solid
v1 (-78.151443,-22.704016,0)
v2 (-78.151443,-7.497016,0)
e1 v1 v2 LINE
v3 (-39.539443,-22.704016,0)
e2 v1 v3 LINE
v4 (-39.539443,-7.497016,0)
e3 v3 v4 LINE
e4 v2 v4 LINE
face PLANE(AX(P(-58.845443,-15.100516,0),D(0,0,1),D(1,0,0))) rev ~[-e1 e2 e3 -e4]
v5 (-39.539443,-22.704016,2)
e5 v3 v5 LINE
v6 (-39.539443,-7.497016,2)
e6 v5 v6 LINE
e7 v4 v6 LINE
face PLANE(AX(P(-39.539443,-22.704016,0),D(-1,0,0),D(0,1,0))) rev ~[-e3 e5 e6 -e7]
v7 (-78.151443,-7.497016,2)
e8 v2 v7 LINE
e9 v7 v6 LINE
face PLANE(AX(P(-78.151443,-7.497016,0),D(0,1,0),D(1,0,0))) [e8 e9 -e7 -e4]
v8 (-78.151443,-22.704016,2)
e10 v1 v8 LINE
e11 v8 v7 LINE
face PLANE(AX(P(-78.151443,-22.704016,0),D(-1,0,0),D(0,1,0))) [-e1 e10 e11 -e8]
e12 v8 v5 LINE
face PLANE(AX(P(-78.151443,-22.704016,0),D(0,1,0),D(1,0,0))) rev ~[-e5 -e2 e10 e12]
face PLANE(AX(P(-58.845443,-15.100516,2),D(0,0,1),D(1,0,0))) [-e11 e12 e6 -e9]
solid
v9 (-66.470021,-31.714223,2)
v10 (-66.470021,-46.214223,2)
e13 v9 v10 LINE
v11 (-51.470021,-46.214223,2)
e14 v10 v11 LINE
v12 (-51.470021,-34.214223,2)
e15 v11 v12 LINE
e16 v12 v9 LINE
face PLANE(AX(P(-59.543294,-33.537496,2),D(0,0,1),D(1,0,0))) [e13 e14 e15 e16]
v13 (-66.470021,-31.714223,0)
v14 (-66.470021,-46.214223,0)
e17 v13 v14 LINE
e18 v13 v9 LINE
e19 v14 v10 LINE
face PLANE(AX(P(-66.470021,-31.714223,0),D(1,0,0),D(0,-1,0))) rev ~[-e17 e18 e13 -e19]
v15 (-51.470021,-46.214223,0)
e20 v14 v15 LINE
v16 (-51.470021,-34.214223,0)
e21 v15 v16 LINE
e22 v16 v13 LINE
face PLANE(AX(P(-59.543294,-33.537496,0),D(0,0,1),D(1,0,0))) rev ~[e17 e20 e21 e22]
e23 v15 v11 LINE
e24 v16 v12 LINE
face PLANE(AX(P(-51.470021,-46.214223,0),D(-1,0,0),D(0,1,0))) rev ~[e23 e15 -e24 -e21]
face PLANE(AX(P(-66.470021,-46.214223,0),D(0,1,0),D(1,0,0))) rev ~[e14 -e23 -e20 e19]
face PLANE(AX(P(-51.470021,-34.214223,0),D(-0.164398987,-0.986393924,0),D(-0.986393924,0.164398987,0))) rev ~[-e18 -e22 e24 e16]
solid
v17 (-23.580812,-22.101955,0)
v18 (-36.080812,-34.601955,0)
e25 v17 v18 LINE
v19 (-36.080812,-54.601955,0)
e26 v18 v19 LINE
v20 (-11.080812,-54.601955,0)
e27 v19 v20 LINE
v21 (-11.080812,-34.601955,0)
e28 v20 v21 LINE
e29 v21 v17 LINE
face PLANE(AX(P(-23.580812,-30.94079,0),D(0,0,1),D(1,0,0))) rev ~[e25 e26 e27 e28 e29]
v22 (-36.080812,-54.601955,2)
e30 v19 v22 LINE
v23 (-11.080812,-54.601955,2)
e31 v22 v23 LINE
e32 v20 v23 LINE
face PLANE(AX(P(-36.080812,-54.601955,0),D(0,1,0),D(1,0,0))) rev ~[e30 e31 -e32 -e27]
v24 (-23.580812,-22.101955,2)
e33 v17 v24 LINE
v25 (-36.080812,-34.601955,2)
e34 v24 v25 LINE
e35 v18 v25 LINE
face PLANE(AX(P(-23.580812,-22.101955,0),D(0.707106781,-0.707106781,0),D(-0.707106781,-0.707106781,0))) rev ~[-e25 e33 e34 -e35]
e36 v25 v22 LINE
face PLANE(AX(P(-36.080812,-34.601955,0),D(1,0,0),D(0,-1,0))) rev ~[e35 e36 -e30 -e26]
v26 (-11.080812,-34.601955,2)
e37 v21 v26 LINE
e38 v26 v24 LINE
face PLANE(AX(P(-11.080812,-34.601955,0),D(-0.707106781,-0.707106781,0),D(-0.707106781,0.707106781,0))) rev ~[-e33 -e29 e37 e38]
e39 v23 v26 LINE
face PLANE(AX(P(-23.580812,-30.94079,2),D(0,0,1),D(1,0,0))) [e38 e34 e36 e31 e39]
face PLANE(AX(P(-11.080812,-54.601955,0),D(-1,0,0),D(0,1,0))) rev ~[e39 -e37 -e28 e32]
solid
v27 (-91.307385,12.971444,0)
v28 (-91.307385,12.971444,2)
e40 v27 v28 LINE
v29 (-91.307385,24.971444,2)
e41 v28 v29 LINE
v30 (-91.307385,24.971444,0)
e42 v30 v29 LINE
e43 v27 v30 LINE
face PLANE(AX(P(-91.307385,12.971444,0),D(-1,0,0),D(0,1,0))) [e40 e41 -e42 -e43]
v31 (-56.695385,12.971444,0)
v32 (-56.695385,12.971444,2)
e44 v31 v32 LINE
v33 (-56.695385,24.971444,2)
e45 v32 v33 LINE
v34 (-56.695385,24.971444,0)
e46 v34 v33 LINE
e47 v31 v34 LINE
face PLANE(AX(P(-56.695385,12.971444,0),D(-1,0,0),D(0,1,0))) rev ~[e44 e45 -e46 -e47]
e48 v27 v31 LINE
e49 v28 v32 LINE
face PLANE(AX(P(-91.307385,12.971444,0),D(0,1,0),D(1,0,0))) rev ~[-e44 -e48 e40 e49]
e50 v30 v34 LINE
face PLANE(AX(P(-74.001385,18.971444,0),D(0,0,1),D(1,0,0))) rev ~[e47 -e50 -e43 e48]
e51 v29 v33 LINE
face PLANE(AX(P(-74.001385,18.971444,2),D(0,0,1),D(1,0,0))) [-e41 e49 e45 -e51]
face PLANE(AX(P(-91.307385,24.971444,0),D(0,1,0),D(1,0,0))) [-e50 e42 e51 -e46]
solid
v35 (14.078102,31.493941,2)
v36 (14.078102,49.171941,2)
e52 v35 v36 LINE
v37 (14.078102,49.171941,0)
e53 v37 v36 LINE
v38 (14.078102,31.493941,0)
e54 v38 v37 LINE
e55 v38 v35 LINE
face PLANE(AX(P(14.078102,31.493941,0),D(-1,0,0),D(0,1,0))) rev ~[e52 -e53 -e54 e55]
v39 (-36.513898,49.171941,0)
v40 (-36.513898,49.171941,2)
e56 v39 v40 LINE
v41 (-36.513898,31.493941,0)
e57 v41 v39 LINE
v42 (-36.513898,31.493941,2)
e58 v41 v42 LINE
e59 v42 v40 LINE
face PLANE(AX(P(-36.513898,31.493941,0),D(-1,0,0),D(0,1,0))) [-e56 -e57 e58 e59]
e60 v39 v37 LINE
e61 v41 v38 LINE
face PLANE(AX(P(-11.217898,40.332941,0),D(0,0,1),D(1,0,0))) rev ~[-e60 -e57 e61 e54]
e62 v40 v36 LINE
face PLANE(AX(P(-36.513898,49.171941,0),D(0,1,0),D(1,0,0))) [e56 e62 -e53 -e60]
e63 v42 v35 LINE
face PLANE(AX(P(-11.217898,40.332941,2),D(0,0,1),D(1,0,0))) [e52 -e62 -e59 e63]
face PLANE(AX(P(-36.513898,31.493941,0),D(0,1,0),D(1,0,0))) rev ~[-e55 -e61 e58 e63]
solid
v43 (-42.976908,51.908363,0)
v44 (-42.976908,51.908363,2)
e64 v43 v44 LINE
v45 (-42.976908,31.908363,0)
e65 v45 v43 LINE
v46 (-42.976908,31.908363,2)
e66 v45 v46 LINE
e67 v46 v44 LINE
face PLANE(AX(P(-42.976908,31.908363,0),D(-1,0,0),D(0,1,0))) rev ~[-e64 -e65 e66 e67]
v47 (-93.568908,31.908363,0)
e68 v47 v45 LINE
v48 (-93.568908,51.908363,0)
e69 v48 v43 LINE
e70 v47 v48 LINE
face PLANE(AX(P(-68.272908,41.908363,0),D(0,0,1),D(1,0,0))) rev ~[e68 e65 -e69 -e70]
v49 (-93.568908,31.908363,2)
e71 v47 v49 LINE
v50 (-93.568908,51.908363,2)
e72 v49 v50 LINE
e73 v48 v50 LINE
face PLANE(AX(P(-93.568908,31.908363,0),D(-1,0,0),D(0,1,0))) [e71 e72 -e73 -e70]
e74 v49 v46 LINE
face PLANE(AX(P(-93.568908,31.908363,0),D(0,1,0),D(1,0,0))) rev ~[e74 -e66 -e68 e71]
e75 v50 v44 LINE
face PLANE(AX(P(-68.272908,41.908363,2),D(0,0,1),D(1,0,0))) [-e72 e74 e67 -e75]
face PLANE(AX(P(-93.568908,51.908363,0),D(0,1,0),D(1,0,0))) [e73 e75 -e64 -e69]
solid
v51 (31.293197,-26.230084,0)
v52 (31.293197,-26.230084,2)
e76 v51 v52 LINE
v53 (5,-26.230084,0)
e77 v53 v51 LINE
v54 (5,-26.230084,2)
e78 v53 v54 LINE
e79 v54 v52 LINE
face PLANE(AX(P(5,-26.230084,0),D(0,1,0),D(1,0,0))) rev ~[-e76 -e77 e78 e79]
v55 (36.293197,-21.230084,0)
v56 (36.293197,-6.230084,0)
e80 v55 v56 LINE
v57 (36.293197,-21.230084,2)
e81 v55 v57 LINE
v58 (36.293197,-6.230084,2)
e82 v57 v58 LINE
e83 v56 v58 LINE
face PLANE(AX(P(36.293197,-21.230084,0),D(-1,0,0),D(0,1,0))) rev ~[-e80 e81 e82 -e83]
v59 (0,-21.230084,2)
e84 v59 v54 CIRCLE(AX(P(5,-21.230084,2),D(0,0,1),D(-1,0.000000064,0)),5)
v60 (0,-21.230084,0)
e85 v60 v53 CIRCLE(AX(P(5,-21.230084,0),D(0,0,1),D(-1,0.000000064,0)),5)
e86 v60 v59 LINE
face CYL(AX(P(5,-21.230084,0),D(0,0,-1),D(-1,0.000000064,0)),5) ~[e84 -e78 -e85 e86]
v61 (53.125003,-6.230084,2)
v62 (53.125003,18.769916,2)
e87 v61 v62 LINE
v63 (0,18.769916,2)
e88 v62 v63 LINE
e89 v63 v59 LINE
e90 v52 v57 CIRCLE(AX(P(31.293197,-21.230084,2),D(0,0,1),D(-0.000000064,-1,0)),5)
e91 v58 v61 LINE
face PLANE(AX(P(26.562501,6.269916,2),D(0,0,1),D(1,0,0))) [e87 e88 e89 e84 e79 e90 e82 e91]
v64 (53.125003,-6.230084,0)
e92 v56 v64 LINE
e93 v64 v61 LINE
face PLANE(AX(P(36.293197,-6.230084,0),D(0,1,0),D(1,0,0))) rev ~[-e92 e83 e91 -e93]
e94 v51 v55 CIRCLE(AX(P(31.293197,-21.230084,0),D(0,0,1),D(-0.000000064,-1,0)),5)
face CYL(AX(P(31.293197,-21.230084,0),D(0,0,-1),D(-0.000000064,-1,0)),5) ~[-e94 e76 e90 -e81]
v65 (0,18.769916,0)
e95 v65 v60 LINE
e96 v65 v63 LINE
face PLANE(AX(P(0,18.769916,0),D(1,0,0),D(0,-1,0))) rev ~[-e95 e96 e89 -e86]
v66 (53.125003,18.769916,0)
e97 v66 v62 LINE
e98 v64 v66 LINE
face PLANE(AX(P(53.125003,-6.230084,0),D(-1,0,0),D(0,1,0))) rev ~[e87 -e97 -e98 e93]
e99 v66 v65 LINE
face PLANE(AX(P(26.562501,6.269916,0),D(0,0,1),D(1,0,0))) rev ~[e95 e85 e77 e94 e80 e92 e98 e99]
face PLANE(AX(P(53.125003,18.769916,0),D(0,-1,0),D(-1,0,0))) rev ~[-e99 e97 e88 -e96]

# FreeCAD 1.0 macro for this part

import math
import FreeCAD as App
import Part
import Sketcher

V = App.Vector
Q = App.Units.Quantity


def add_polygon(sketch, points):
    """Adds a closed chain of lines whose ends are joined by coincident constraints."""
    first, n = sketch.GeometryCount, len(points)
    for a, b in zip(points, points[1:] + points[:1]):
        sketch.addGeometry(Part.LineSegment(App.Vector(*a, 0), App.Vector(*b, 0)), False)
    for i in range(n):
        sketch.addConstraint(Sketcher.Constraint("Coincident", first + i, 2, first + (i + 1) % n, 1))

doc = App.newDocument("Part")
body = doc.addObject("PartDesign::Body", "Body")

sketch1 = body.newObject("Sketcher::SketchObject", "Sketch")
sketch1.AttachmentSupport = (doc.getObject("XY_Plane"), [""])
sketch1.MapMode = "FlatFace"
add_polygon(sketch1, [(-93.568908, 51.908363), (-93.568908, 31.908363), (-42.976908, 31.908363), (-42.976908, 51.908363)])
sketch1.addConstraint(Sketcher.Constraint("Vertical", 0))
sketch1.addConstraint(Sketcher.Constraint("Horizontal", 1))
sketch1.addConstraint(Sketcher.Constraint("Vertical", 2))
sketch1.addConstraint(Sketcher.Constraint("Horizontal", 3))
sketch1.addConstraint(Sketcher.Constraint("DistanceY", 0, 2, 0, 1, Q("20 mm")))
sketch1.addConstraint(Sketcher.Constraint("DistanceX", 1, 1, 1, 2, Q("50.592 mm")))
sketch1.addConstraint(Sketcher.Constraint("DistanceX", 1, 2, -1, 1, Q("42.976908 mm")))
sketch1.addConstraint(Sketcher.Constraint("DistanceY", -1, 1, 0, 2, Q("31.908363 mm")))
pad1 = body.newObject("PartDesign::Pad", "Pad")
pad1.Profile = sketch1
pad1.Length = 2
body2 = doc.addObject("PartDesign::Body", "Body001")

sketch2 = body2.newObject("Sketcher::SketchObject", "Sketch001")
sketch2.AttachmentSupport = (doc.getObject("XY_Plane001"), [""])
sketch2.MapMode = "FlatFace"
add_polygon(sketch2, [(-91.307385, 24.971444), (-91.307385, 12.971444), (-56.695385, 12.971444), (-56.695385, 24.971444)])
sketch2.addConstraint(Sketcher.Constraint("Vertical", 0))
sketch2.addConstraint(Sketcher.Constraint("Horizontal", 1))
sketch2.addConstraint(Sketcher.Constraint("Vertical", 2))
sketch2.addConstraint(Sketcher.Constraint("Horizontal", 3))
sketch2.addConstraint(Sketcher.Constraint("DistanceY", 0, 2, 0, 1, Q("12 mm")))
sketch2.addConstraint(Sketcher.Constraint("DistanceX", 1, 1, 1, 2, Q("34.612 mm")))
sketch2.addConstraint(Sketcher.Constraint("DistanceX", 0, 2, -1, 1, Q("91.307385 mm")))
sketch2.addConstraint(Sketcher.Constraint("DistanceY", -1, 1, 0, 2, Q("12.971444 mm")))
pad2 = body2.newObject("PartDesign::Pad", "Pad001")
pad2.Profile = sketch2
pad2.Length = 2
body3 = doc.addObject("PartDesign::Body", "Body002")

sketch3 = body3.newObject("Sketcher::SketchObject", "Sketch002")
sketch3.AttachmentSupport = (doc.getObject("XY_Plane002"), [""])
sketch3.MapMode = "FlatFace"
add_polygon(sketch3, [(-36.513898, 49.171941), (-36.513898, 31.493941), (14.078102, 31.493941), (14.078102, 49.171941)])
sketch3.addConstraint(Sketcher.Constraint("Vertical", 0))
sketch3.addConstraint(Sketcher.Constraint("Horizontal", 1))
sketch3.addConstraint(Sketcher.Constraint("Vertical", 2))
sketch3.addConstraint(Sketcher.Constraint("Horizontal", 3))
sketch3.addConstraint(Sketcher.Constraint("DistanceX", 1, 1, 1, 2, Q("50.592 mm")))
sketch3.addConstraint(Sketcher.Constraint("DistanceY", 0, 2, 0, 1, Q("17.678 mm")))
sketch3.addConstraint(Sketcher.Constraint("DistanceY", -1, 1, 0, 2, Q("31.493941 mm")))
sketch3.addConstraint(Sketcher.Constraint("DistanceX", 0, 2, -1, 1, Q("36.513898 mm")))
pad3 = body3.newObject("PartDesign::Pad", "Pad002")
pad3.Profile = sketch3
pad3.Length = 2
body4 = doc.addObject("PartDesign::Body", "Body003")

sketch4 = body4.newObject("Sketcher::SketchObject", "Sketch003")
sketch4.AttachmentSupport = (doc.getObject("XY_Plane003"), [""])
sketch4.MapMode = "FlatFace"
sketch4.addGeometry(Part.LineSegment(V(53.125003, 18.769916, 0), V(0, 18.769916, 0)), False)
sketch4.addGeometry(Part.LineSegment(V(0, 18.769916, 0), V(0, -21.230084, 0)), False)
sketch4.addGeometry(Part.ArcOfCircle(Part.Circle(V(5, -21.230084, 0), V(0, 0, 1), 5), math.radians(179.999996), math.radians(270.000004)), False)
sketch4.addGeometry(Part.LineSegment(V(5, -26.230084, 0), V(31.293197, -26.230084, 0)), False)
sketch4.addGeometry(Part.ArcOfCircle(Part.Circle(V(31.293197, -21.230084, 0), V(0, 0, 1), 5), math.radians(-90.000004), math.radians(0.000004)), False)
sketch4.addGeometry(Part.LineSegment(V(36.293197, -21.230084, 0), V(36.293197, -6.230084, 0)), False)
sketch4.addGeometry(Part.LineSegment(V(36.293197, -6.230084, 0), V(53.125003, -6.230084, 0)), False)
sketch4.addGeometry(Part.LineSegment(V(53.125003, -6.230084, 0), V(53.125003, 18.769916, 0)), False)
sketch4.addConstraint(Sketcher.Constraint("Coincident", 0, 2, 1, 1))
sketch4.addConstraint(Sketcher.Constraint("Tangent", 1, 2, 2, 1))
sketch4.addConstraint(Sketcher.Constraint("Tangent", 2, 2, 3, 1))
sketch4.addConstraint(Sketcher.Constraint("Tangent", 3, 2, 4, 1))
sketch4.addConstraint(Sketcher.Constraint("Tangent", 4, 2, 5, 1))
sketch4.addConstraint(Sketcher.Constraint("Coincident", 5, 2, 6, 1))
sketch4.addConstraint(Sketcher.Constraint("Coincident", 6, 2, 7, 1))
sketch4.addConstraint(Sketcher.Constraint("Coincident", 7, 2, 0, 1))
sketch4.addConstraint(Sketcher.Constraint("Horizontal", 0))
sketch4.addConstraint(Sketcher.Constraint("Vertical", 1))
sketch4.addConstraint(Sketcher.Constraint("Horizontal", 3))
sketch4.addConstraint(Sketcher.Constraint("Vertical", 5))
sketch4.addConstraint(Sketcher.Constraint("Horizontal", 6))
sketch4.addConstraint(Sketcher.Constraint("Vertical", 7))
sketch4.addConstraint(Sketcher.Constraint("Equal", 2, 4))
sketch4.addConstraint(Sketcher.Constraint("PointOnObject", 0, 2, -2))
sketch4.addConstraint(Sketcher.Constraint("Radius", 2, Q("5 mm")))
sketch4.addConstraint(Sketcher.Constraint("DistanceY", 1, 2, 1, 1, Q("40 mm")))
sketch4.addConstraint(Sketcher.Constraint("DistanceY", 5, 1, 5, 2, Q("15 mm")))
sketch4.addConstraint(Sketcher.Constraint("DistanceX", 0, 2, 0, 1, Q("53.125003 mm")))
sketch4.addConstraint(Sketcher.Constraint("DistanceX", 3, 1, 3, 2, Q("26.293197 mm")))
sketch4.addConstraint(Sketcher.Constraint("DistanceY", 2, 3, -1, 1, Q("21.230084 mm")))
pad4 = body4.newObject("PartDesign::Pad", "Pad003")
pad4.Profile = sketch4
pad4.Length = 2
body5 = doc.addObject("PartDesign::Body", "Body004")

sketch5 = body5.newObject("Sketcher::SketchObject", "Sketch004")
sketch5.AttachmentSupport = (doc.getObject("XY_Plane004"), [""])
sketch5.MapMode = "FlatFace"
add_polygon(sketch5, [(-78.151443, -7.497016), (-78.151443, -22.704016), (-39.539443, -22.704016), (-39.539443, -7.497016)])
sketch5.addConstraint(Sketcher.Constraint("Vertical", 0))
sketch5.addConstraint(Sketcher.Constraint("Horizontal", 1))
sketch5.addConstraint(Sketcher.Constraint("Vertical", 2))
sketch5.addConstraint(Sketcher.Constraint("Horizontal", 3))
sketch5.addConstraint(Sketcher.Constraint("DistanceX", 1, 1, 1, 2, Q("38.612 mm")))
sketch5.addConstraint(Sketcher.Constraint("DistanceY", 0, 2, 0, 1, Q("15.207 mm")))
sketch5.addConstraint(Sketcher.Constraint("DistanceX", 0, 2, -1, 1, Q("78.151443 mm")))
sketch5.addConstraint(Sketcher.Constraint("DistanceY", 0, 2, -1, 1, Q("22.704016 mm")))
pad5 = body5.newObject("PartDesign::Pad", "Pad004")
pad5.Profile = sketch5
pad5.Length = 2
body6 = doc.addObject("PartDesign::Body", "Body005")

sketch6 = body6.newObject("Sketcher::SketchObject", "Sketch005")
sketch6.AttachmentSupport = (doc.getObject("XY_Plane005"), [""])
sketch6.MapMode = "FlatFace"
add_polygon(sketch6, [(-66.470021, -31.714223), (-66.470021, -46.214223), (-51.470021, -46.214223), (-51.470021, -34.214223)])
sketch6.addConstraint(Sketcher.Constraint("Vertical", 0))
sketch6.addConstraint(Sketcher.Constraint("Horizontal", 1))
sketch6.addConstraint(Sketcher.Constraint("Vertical", 2))
sketch6.addConstraint(Sketcher.Constraint("DistanceX", 1, 1, 1, 2, Q("15 mm")))
sketch6.addConstraint(Sketcher.Constraint("DistanceY", 2, 1, 2, 2, Q("12 mm")))
sketch6.addConstraint(Sketcher.Constraint("DistanceY", 0, 2, 0, 1, Q("14.5 mm")))
sketch6.addConstraint(Sketcher.Constraint("DistanceX", 0, 2, -1, 1, Q("66.470021 mm")))
sketch6.addConstraint(Sketcher.Constraint("DistanceY", 0, 2, -1, 1, Q("46.214223 mm")))
pad6 = body6.newObject("PartDesign::Pad", "Pad005")
pad6.Profile = sketch6
pad6.Length = 2
body7 = doc.addObject("PartDesign::Body", "Body006")

sketch7 = body7.newObject("Sketcher::SketchObject", "Sketch006")
sketch7.AttachmentSupport = (doc.getObject("XY_Plane006"), [""])
sketch7.MapMode = "FlatFace"
add_polygon(sketch7, [(-23.580812, -22.101955), (-36.080812, -34.601955), (-36.080812, -54.601955), (-11.080812, -54.601955), (-11.080812, -34.601955)])
sketch7.addConstraint(Sketcher.Constraint("Vertical", 1))
sketch7.addConstraint(Sketcher.Constraint("Horizontal", 2))
sketch7.addConstraint(Sketcher.Constraint("Vertical", 3))
sketch7.addConstraint(Sketcher.Constraint("Perpendicular", 0, 4))
sketch7.addConstraint(Sketcher.Constraint("Horizontal", 0, 2, 3, 2))
sketch7.addConstraint(Sketcher.Constraint("Equal", 0, 4))
sketch7.addConstraint(Sketcher.Constraint("DistanceX", 2, 1, 2, 2, Q("25 mm")))
sketch7.addConstraint(Sketcher.Constraint("DistanceY", 1, 2, 1, 1, Q("20 mm")))
sketch7.addConstraint(Sketcher.Constraint("DistanceX", 0, 2, -1, 1, Q("36.080812 mm")))
sketch7.addConstraint(Sketcher.Constraint("DistanceY", 0, 2, -1, 1, Q("34.601955 mm")))
pad7 = body7.newObject("PartDesign::Pad", "Pad006")
pad7.Profile = sketch7
pad7.Length = 2

doc.recompute()
